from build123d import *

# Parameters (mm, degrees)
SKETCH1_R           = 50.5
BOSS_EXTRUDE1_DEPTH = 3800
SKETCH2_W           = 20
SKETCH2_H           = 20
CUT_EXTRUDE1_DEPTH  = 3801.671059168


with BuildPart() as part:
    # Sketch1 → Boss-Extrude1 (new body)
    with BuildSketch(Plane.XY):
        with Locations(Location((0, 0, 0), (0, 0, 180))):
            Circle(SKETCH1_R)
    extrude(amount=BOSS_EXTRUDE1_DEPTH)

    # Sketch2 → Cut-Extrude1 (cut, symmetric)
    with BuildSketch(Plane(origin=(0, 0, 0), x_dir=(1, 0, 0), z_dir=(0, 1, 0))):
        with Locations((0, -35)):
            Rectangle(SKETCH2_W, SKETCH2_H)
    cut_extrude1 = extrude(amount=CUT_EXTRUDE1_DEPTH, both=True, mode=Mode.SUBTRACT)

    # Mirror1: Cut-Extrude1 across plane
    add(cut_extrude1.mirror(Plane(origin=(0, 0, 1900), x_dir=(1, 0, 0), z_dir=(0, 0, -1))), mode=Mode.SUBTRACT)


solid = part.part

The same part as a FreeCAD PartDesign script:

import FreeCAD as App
import Part
import Sketcher

V = App.Vector
Q = App.Units.Quantity

doc = App.newDocument("Part")
body = doc.addObject("PartDesign::Body", "Body")

sketch1 = body.newObject("Sketcher::SketchObject", "Sketch")
sketch1.AttachmentSupport = (doc.getObject("XY_Plane"), [""])
sketch1.MapMode = "FlatFace"
sketch1.addGeometry(Part.Circle(V(0, 0, 0), V(0, 0, 1), 50), False)
sketch1.addConstraint([
    Sketcher.Constraint("Coincident", 0, 3, -1, 1),
    Sketcher.Constraint("Diameter", 0, Q("101 mm")),
])
pad1 = body.newObject("PartDesign::Pad", "Pad")
pad1.Profile = sketch1
pad1.Length = 3800

sketch2 = body.newObject("Sketcher::SketchObject", "Sketch001")
sketch2.AttachmentSupport = (doc.getObject("XZ_Plane"), [""])
sketch2.MapMode = "FlatFace"
sketch2.addGeometry([
    Part.LineSegment(V(-10, 25, 0), V(-10, 45, 0)),
    Part.LineSegment(V(-10, 45, 0), V(10, 45, 0)),
    Part.LineSegment(V(10, 45, 0), V(10, 25, 0)),
    Part.LineSegment(V(10, 25, 0), V(-10, 25, 0)),
], False)
sketch2.addConstraint([
    Sketcher.Constraint("Coincident", 0, 2, 1, 1),
    Sketcher.Constraint("Coincident", 1, 2, 2, 1),
    Sketcher.Constraint("Coincident", 2, 2, 3, 1),
    Sketcher.Constraint("Coincident", 3, 2, 0, 1),
    Sketcher.Constraint("Vertical", 0),
    Sketcher.Constraint("Horizontal", 1),
    Sketcher.Constraint("Vertical", 2),
    Sketcher.Constraint("Horizontal", 3),
    Sketcher.Constraint("Equal", 3, 0),
    Sketcher.Constraint("DistanceX", 1, 1, 1, 2, Q("20 mm")),
    Sketcher.Constraint("DistanceX", 0, 2, -1, 1, Q("10 mm")),
    Sketcher.Constraint("DistanceY", -1, 1, 0, 2, Q("45 mm")),
])
pocket1 = body.newObject("PartDesign::Pocket", "Pocket")
pocket1.Profile = sketch2
pocket1.Length = 7603.342118
pocket1.Midplane = True
doc.recompute()

datumplane = body.newObject("PartDesign::Plane", "DatumPlane")
datumplane.AttachmentSupport = (doc.getObject("XY_Plane"), [""])
datumplane.MapMode = "FlatFace"
datumplane.AttachmentOffset = App.Placement(V(0, 0, 1900), App.Rotation())
mirrored = body.newObject("PartDesign::Mirrored", "Mirrored")
mirrored.Originals = [pocket1]
mirrored.MirrorPlane = (datumplane, [""])
body.Tip = mirrored

doc.recompute()
